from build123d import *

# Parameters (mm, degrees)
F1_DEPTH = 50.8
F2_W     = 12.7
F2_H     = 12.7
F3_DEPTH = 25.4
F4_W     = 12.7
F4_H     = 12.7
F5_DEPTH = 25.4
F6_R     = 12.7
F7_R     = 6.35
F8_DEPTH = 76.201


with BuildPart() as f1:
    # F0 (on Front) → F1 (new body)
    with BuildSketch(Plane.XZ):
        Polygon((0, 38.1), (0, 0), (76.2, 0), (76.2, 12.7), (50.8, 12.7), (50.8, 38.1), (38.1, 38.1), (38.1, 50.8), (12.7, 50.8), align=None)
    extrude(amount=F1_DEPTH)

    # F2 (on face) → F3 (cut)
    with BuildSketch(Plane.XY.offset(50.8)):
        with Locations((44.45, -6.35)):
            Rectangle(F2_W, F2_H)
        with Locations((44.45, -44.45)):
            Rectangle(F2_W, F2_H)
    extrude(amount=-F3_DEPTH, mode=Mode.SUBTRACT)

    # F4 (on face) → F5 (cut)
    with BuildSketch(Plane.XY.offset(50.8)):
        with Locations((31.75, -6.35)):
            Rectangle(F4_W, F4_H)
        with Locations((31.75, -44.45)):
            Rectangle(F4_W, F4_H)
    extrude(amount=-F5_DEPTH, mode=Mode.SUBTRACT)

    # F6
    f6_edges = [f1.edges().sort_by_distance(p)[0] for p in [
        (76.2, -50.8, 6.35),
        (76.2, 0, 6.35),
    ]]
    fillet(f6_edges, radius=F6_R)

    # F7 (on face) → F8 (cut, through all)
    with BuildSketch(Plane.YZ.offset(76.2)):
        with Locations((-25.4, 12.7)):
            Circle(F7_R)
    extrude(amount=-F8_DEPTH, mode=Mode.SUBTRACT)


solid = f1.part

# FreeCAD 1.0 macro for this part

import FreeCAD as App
import Part
import Sketcher

V = App.Vector
Q = App.Units.Quantity


def edges_at(feature, points):
    """Names of the edges that pass closest to the given points."""
    edges = feature.Shape.Edges
    near = lambda p: min(range(len(edges)), key=lambda i: edges[i].distToShape(Part.Vertex(*p))[0])
    return sorted({f"Edge{near(p) + 1}" for p in points})


def add_polygon(sketch, points):
    """Adds a closed chain of lines whose ends are joined by coincident constraints."""
    first, n = sketch.GeometryCount, len(points)
    for a, b in zip(points, points[1:] + points[:1]):
        sketch.addGeometry(Part.LineSegment(App.Vector(*a, 0), App.Vector(*b, 0)), False)
    for i in range(n):
        sketch.addConstraint(Sketcher.Constraint("Coincident", first + i, 2, first + (i + 1) % n, 1))

doc = App.newDocument("Part")
params = doc.addObject("Spreadsheet::Sheet", "Params")
for row, (alias, value) in enumerate([
    ("sketch1_width", "3 in"),
    ("sketch1_width2", "1 in"),
    ("sketch1_width3", "0.5 in"),
    ("pad1_length", "2 in"),
    ("sketch2_width", "0.5 in"),
    ("pocket1_length", "1 in"),
    ("sketch3_width", "0.5 in"),
    ("pocket2_length", "1 in"),
    ("fillet_radius", "0.5 in"),
    ("sketch4_diameter", "0.5 in"),
], start=1):
    params.set(f"A{row}", alias)
    params.set(f"B{row}", "=" + value)
    params.setAlias(f"B{row}", alias)

body = doc.addObject("PartDesign::Body", "Body")

# Sketch on XZ plane
sketch1 = body.newObject("Sketcher::SketchObject", "Sketch")
sketch1.AttachmentSupport = (doc.getObject("XZ_Plane"), [""])
sketch1.MapMode = "FlatFace"
add_polygon(sketch1, [(0, 38), (0, 0), (76, 0), (76, 13), (51, 13), (51, 38), (38, 38), (38, 51), (13, 51)])  # lines 0-8
sketch1.addConstraint(Sketcher.Constraint("Vertical", 0))
sketch1.addConstraint(Sketcher.Constraint("Horizontal", 1))
sketch1.addConstraint(Sketcher.Constraint("Vertical", 2))
sketch1.addConstraint(Sketcher.Constraint("Horizontal", 3))
sketch1.addConstraint(Sketcher.Constraint("Vertical", 4))
sketch1.addConstraint(Sketcher.Constraint("Horizontal", 5))
sketch1.addConstraint(Sketcher.Constraint("Vertical", 6))
sketch1.addConstraint(Sketcher.Constraint("Horizontal", 7))
sketch1.addConstraint(Sketcher.Constraint("Coincident", 0, 2, -1, 1))
sketch1.addConstraint(Sketcher.Constraint("Horizontal", 5, 2, 8, 2))
sketch1.addConstraint(Sketcher.Constraint("Equal", 3, 7))
sketch1.addConstraint(Sketcher.Constraint("Equal", 5, 2))
sketch1.addConstraint(Sketcher.Constraint("Equal", 7, 4))
sketch1.addConstraint(Sketcher.Constraint("Equal", 2, 6))
sketch1.addConstraint(Sketcher.Constraint("DistanceX", 1, 1, 1, 2, Q("3 in")))
sketch1.addConstraint(Sketcher.Constraint("DistanceX", 3, 2, 3, 1, Q("1 in")))
sketch1.addConstraint(Sketcher.Constraint("DistanceX", 5, 2, 5, 1, Q("0.5 in")))
sketch1.setExpression("Constraints[23]", "Params.sketch1_width")
sketch1.setExpression("Constraints[24]", "Params.sketch1_width2")
sketch1.setExpression("Constraints[25]", "Params.sketch1_width3")
pad1 = body.newObject("PartDesign::Pad", "Pad")
pad1.Profile = sketch1
pad1.setExpression("Length", "Params.pad1_length")

# Sketch on XY plane
sketch2 = body.newObject("Sketcher::SketchObject", "Sketch001")
sketch2.AttachmentSupport = (doc.getObject("XY_Plane"), [""])
sketch2.MapMode = "FlatFace"
sketch2.AttachmentOffset = App.Placement(V(0, 0, 2 * 25.4), App.Rotation())
add_polygon(sketch2, [(38, 0), (38, -13), (51, -13), (51, 0)])  # lines 0-3
add_polygon(sketch2, [(38, -38), (38, -51), (51, -51), (51, -38)])  # lines 4-7
sketch2.addConstraint(Sketcher.Constraint("Vertical", 0))
sketch2.addConstraint(Sketcher.Constraint("Horizontal", 1))
sketch2.addConstraint(Sketcher.Constraint("Vertical", 2))
sketch2.addConstraint(Sketcher.Constraint("Horizontal", 3))
sketch2.addConstraint(Sketcher.Constraint("Vertical", 4))
sketch2.addConstraint(Sketcher.Constraint("Horizontal", 5))
sketch2.addConstraint(Sketcher.Constraint("Vertical", 6))
sketch2.addConstraint(Sketcher.Constraint("Horizontal", 7))
sketch2.addConstraint(Sketcher.Constraint("PointOnObject", 2, 2, -1))
sketch2.addConstraint(Sketcher.Constraint("Vertical", 3, 2, 4, 2))
sketch2.addConstraint(Sketcher.Constraint("Vertical", 2, 2, 5, 2))
sketch2.addConstraint(Sketcher.Constraint("Equal", 7, 0))
sketch2.addConstraint(Sketcher.Constraint("Equal", 2, 4))
sketch2.addConstraint(Sketcher.Constraint("DistanceX", 1, 1, 1, 2, Q("0.5 in")))
sketch2.addConstraint(Sketcher.Constraint("DistanceX", -1, 1, 1, 2, Q("2 in")))
sketch2.addConstraint(Sketcher.Constraint("DistanceY", 4, 2, -1, 1, Q("2 in")))
sketch2.setExpression("Constraints[21]", "Params.sketch2_width")
pocket1 = body.newObject("PartDesign::Pocket", "Pocket")
pocket1.Profile = sketch2
pocket1.setExpression("Length", "Params.pocket1_length")

# Sketch on XY plane
sketch3 = body.newObject("Sketcher::SketchObject", "Sketch002")
sketch3.AttachmentSupport = (doc.getObject("XY_Plane"), [""])
sketch3.MapMode = "FlatFace"
sketch3.AttachmentOffset = App.Placement(V(0, 0, 2 * 25.4), App.Rotation())
add_polygon(sketch3, [(25, 0), (25, -13), (38, -13), (38, 0)])  # lines 0-3
add_polygon(sketch3, [(25, -38), (25, -51), (38, -51), (38, -38)])  # lines 4-7
sketch3.addConstraint(Sketcher.Constraint("Vertical", 0))
sketch3.addConstraint(Sketcher.Constraint("Horizontal", 1))
sketch3.addConstraint(Sketcher.Constraint("Vertical", 2))
sketch3.addConstraint(Sketcher.Constraint("Horizontal", 3))
sketch3.addConstraint(Sketcher.Constraint("Vertical", 4))
sketch3.addConstraint(Sketcher.Constraint("Horizontal", 5))
sketch3.addConstraint(Sketcher.Constraint("Vertical", 6))
sketch3.addConstraint(Sketcher.Constraint("Horizontal", 7))
sketch3.addConstraint(Sketcher.Constraint("PointOnObject", 2, 2, -1))
sketch3.addConstraint(Sketcher.Constraint("Vertical", 3, 2, 4, 2))
sketch3.addConstraint(Sketcher.Constraint("Vertical", 2, 2, 5, 2))
sketch3.addConstraint(Sketcher.Constraint("Equal", 7, 0))
sketch3.addConstraint(Sketcher.Constraint("Equal", 2, 4))
sketch3.addConstraint(Sketcher.Constraint("DistanceX", 1, 1, 1, 2, Q("0.5 in")))
sketch3.addConstraint(Sketcher.Constraint("DistanceX", -1, 1, 0, 2, Q("1 in")))
sketch3.addConstraint(Sketcher.Constraint("DistanceY", 4, 2, -1, 1, Q("2 in")))
sketch3.setExpression("Constraints[21]", "Params.sketch3_width")
pocket2 = body.newObject("PartDesign::Pocket", "Pocket001")
pocket2.Profile = sketch3
pocket2.setExpression("Length", "Params.pocket2_length")
doc.recompute()

fillet = body.newObject("PartDesign::Fillet", "Fillet")
fillet.Base = (pocket2, edges_at(pocket2, [(76.2, -50.8, 6.35), (76.2, 0, 6.35)]))
fillet.setExpression("Radius", "Params.fillet_radius")

# Sketch on YZ plane
sketch4 = body.newObject("Sketcher::SketchObject", "Sketch003")
sketch4.AttachmentSupport = (doc.getObject("YZ_Plane"), [""])
sketch4.MapMode = "FlatFace"
sketch4.AttachmentOffset = App.Placement(V(0, 0, 3 * 25.4), App.Rotation())
sketch4.addGeometry(Part.Circle(V(-25, 13, 0), V(0, 0, 1), 6), False)
sketch4.addConstraint(Sketcher.Constraint("Diameter", 0, Q("0.5 in")))
sketch4.addConstraint(Sketcher.Constraint("DistanceX", 0, 3, -1, 1, Q("1 in")))
sketch4.addConstraint(Sketcher.Constraint("DistanceY", -1, 1, 0, 3, Q("0.5 in")))
sketch4.setExpression("Constraints[0]", "Params.sketch4_diameter")
pocket3 = body.newObject("PartDesign::Pocket", "Pocket002")
pocket3.Profile = sketch4
pocket3.Type = "ThroughAll"

doc.recompute()
